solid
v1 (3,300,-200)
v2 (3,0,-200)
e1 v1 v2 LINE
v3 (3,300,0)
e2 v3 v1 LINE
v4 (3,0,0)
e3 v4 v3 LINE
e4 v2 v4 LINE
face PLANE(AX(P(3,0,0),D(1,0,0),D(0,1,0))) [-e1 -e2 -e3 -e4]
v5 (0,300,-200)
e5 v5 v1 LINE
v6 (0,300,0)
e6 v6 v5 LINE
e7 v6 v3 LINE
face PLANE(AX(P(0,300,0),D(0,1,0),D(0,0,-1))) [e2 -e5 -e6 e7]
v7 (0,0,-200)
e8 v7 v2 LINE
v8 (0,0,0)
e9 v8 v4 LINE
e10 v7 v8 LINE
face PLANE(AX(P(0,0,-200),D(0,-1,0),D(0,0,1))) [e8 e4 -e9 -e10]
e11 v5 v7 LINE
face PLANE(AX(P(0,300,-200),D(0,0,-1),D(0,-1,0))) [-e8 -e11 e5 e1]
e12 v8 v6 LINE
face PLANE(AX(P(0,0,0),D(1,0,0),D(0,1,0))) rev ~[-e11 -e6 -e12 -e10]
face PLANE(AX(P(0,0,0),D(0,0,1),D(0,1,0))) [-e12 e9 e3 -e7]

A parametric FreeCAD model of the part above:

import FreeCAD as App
import Part
import Sketcher

doc = App.newDocument("Part")
params = doc.addObject("Spreadsheet::Sheet", "Params")
for row, (alias, value) in enumerate([
    ("sketch1_width", "300 mm"),
    ("sketch1_height", "200 mm"),
    ("pad1_length", "3 mm"),
], start=1):
    params.set(f"A{row}", alias)
    params.set(f"B{row}", "=" + value)
    params.setAlias(f"B{row}", alias)

body = doc.addObject("PartDesign::Body", "Body")

# Sketch on YZ plane
sketch1 = body.newObject("Sketcher::SketchObject", "Sketch")
sketch1.AttachmentSupport = (doc.getObject("YZ_Plane"), [""])
sketch1.MapMode = "FlatFace"
sketch1.addGeometry([
    Part.LineSegment(App.Vector(300, 0, 0), App.Vector(0, 0, 0)),
    Part.LineSegment(App.Vector(0, 0, 0), App.Vector(0, -200, 0)),
    Part.LineSegment(App.Vector(0, -200, 0), App.Vector(300, -200, 0)),
    Part.LineSegment(App.Vector(300, -200, 0), App.Vector(300, 0, 0)),
], False)
sketch1.addConstraint([
    Sketcher.Constraint("Coincident", 0, 2, 1, 1),
    Sketcher.Constraint("Coincident", 1, 2, 2, 1),
    Sketcher.Constraint("Coincident", 2, 2, 3, 1),
    Sketcher.Constraint("Coincident", 3, 2, 0, 1),
    Sketcher.Constraint("Horizontal", 0),
    Sketcher.Constraint("Vertical", 1),
    Sketcher.Constraint("Horizontal", 2),
    Sketcher.Constraint("Vertical", 3),
    Sketcher.Constraint("Coincident", 0, 2, -1, 1),
    Sketcher.Constraint("DistanceX", 0, 2, 0, 1, 300.0),
    Sketcher.Constraint("DistanceY", 1, 2, 1, 1, 200.0),
])
sketch1.setExpression("Constraints[9]", "Params.sketch1_width")
sketch1.setExpression("Constraints[10]", "Params.sketch1_height")
pad1 = body.newObject("PartDesign::Pad", "Pad")
pad1.Profile = sketch1
pad1.setExpression("Length", "Params.pad1_length")

doc.recompute()
